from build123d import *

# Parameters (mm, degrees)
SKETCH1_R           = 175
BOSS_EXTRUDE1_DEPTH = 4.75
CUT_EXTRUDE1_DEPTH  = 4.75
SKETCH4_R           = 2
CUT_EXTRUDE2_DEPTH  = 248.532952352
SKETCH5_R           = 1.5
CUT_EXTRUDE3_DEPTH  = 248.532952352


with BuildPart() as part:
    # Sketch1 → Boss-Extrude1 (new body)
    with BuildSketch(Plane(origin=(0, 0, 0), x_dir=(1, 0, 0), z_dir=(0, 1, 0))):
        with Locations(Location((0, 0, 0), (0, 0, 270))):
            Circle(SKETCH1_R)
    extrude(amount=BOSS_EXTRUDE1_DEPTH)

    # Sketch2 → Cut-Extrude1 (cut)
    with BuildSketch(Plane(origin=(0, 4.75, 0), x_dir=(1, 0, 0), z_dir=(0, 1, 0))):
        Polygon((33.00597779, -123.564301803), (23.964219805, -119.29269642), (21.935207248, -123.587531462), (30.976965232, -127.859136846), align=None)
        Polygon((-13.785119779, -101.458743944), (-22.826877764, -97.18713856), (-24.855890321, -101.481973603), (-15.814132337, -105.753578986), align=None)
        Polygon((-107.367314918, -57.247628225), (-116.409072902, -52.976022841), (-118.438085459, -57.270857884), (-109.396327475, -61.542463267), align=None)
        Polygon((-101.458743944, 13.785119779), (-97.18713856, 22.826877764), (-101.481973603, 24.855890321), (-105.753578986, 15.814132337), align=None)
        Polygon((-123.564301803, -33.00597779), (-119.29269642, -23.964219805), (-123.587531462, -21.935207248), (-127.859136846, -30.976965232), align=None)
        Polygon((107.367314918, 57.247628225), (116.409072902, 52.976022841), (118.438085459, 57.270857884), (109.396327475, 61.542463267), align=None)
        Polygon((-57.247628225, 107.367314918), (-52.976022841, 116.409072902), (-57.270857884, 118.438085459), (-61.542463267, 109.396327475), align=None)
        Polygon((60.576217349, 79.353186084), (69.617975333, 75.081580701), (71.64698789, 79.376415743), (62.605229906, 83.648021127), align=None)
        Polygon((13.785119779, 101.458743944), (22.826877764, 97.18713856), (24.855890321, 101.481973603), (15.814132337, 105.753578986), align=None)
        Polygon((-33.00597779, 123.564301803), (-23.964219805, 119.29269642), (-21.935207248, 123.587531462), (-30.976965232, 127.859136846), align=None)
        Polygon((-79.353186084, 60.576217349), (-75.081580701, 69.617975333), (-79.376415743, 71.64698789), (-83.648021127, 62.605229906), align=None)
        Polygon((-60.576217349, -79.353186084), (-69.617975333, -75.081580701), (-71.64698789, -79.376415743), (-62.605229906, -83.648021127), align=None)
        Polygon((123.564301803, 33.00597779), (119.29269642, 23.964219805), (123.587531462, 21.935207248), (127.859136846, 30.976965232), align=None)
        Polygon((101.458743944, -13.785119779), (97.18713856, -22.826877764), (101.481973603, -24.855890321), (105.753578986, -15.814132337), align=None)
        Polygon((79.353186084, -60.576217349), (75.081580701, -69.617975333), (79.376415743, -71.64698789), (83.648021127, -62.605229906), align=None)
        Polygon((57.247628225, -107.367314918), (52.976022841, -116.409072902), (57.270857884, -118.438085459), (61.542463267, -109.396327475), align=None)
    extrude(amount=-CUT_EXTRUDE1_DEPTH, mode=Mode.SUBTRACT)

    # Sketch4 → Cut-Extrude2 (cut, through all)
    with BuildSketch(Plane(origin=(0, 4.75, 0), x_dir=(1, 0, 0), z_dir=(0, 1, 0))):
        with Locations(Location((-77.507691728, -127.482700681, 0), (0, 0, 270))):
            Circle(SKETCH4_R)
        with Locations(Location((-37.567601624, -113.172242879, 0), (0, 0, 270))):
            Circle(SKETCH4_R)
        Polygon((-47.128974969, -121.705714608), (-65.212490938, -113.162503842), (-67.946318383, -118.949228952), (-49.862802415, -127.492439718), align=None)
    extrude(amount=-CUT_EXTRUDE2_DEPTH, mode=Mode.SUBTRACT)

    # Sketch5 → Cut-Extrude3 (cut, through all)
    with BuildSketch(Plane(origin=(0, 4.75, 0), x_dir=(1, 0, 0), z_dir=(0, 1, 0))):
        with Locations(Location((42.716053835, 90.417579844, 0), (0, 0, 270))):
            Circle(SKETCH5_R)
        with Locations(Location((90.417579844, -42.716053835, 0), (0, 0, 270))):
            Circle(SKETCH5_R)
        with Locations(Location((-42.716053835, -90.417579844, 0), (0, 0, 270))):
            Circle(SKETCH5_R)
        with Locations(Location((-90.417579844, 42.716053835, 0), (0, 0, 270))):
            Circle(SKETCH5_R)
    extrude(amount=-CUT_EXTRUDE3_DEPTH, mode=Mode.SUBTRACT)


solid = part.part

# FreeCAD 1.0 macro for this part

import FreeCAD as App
import Part
import Sketcher

V = App.Vector
Q = App.Units.Quantity


def add_polygon(sketch, points):
    """Adds a closed chain of lines whose ends are joined by coincident constraints."""
    first, n = sketch.GeometryCount, len(points)
    for a, b in zip(points, points[1:] + points[:1]):
        sketch.addGeometry(Part.LineSegment(App.Vector(*a, 0), App.Vector(*b, 0)), False)
    for i in range(n):
        sketch.addConstraint(Sketcher.Constraint("Coincident", first + i, 2, first + (i + 1) % n, 1))

doc = App.newDocument("Part")
body = doc.addObject("PartDesign::Body", "Body")

# Sketch on XZ plane
sketch1 = body.newObject("Sketcher::SketchObject", "Sketch")
sketch1.AttachmentSupport = (doc.getObject("XZ_Plane"), [""])
sketch1.MapMode = "FlatFace"
sketch1.addGeometry(Part.Circle(V(0, 0, 0), V(0, 0, 1), 175), False)
sketch1.addConstraint([
    Sketcher.Constraint("Coincident", 0, 3, -1, 1),
    Sketcher.Constraint("Diameter", 0, Q("350 mm")),
])
pad1 = body.newObject("PartDesign::Pad", "Pad")
pad1.Profile = sketch1
pad1.Length = 4.75
pad1.Reversed = True

# Sketch on XZ plane
sketch2 = body.newObject("Sketcher::SketchObject", "Sketch001")
sketch2.AttachmentSupport = (doc.getObject("XZ_Plane"), [""])
sketch2.MapMode = "FlatFace"
sketch2.AttachmentOffset = App.Placement(V(0, 0, -4.75), App.Rotation())
add_polygon(sketch2, [(33, 123.6), (24, 119.3), (21.9, 123.6), (31, 127.9)])  # lines 0-3
add_polygon(sketch2, [(-13.8, 101.5), (-22.8, 97.2), (-24.9, 101.5), (-15.8, 105.8)])  # lines 4-7
add_polygon(sketch2, [(-107.4, 57.2), (-116.4, 53), (-118.4, 57.3), (-109.4, 61.5)])  # lines 8-11
add_polygon(sketch2, [(-101.5, -13.8), (-97.2, -22.8), (-101.5, -24.9), (-105.8, -15.8)])  # lines 12-15
add_polygon(sketch2, [(-123.6, 33), (-119.3, 24), (-123.6, 21.9), (-127.9, 31)])  # lines 16-19
add_polygon(sketch2, [(107.4, -57.2), (116.4, -53), (118.4, -57.3), (109.4, -61.5)])  # lines 20-23
add_polygon(sketch2, [(-57.2, -107.4), (-53, -116.4), (-57.3, -118.4), (-61.5, -109.4)])  # lines 24-27
add_polygon(sketch2, [(60.6, -79.4), (69.6, -75.1), (71.6, -79.4), (62.6, -83.6)])  # lines 28-31
add_polygon(sketch2, [(13.8, -101.5), (22.8, -97.2), (24.9, -101.5), (15.8, -105.8)])  # lines 32-35
add_polygon(sketch2, [(-33, -123.6), (-24, -119.3), (-21.9, -123.6), (-31, -127.9)])  # lines 36-39
add_polygon(sketch2, [(-79.4, -60.6), (-75.1, -69.6), (-79.4, -71.6), (-83.6, -62.6)])  # lines 40-43
add_polygon(sketch2, [(-60.6, 79.4), (-69.6, 75.1), (-71.6, 79.4), (-62.6, 83.6)])  # lines 44-47
add_polygon(sketch2, [(123.6, -33), (119.3, -24), (123.6, -21.9), (127.9, -31)])  # lines 48-51
add_polygon(sketch2, [(101.5, 13.8), (97.2, 22.8), (101.5, 24.9), (105.8, 15.8)])  # lines 52-55
add_polygon(sketch2, [(79.4, 60.6), (75.1, 69.6), (79.4, 71.6), (83.6, 62.6)])  # lines 56-59
add_polygon(sketch2, [(57.2, 107.4), (53, 116.4), (57.3, 118.4), (61.5, 109.4)])  # lines 60-63
sketch2.addConstraint([
    Sketcher.Constraint("Symmetric", 8, 2, 20, 2, -1, 1),
    Sketcher.Constraint("Symmetric", 9, 2, 21, 2, -1, 1),
    Sketcher.Constraint("Symmetric", 10, 2, 22, 2, -1, 1),
    Sketcher.Constraint("Symmetric", 11, 2, 23, 2, -1, 1),
    Sketcher.Constraint("Symmetric", 4, 2, 32, 2, -1, 1),
    Sketcher.Constraint("Symmetric", 5, 2, 33, 2, -1, 1),
    Sketcher.Constraint("Symmetric", 6, 2, 34, 2, -1, 1),
    Sketcher.Constraint("Symmetric", 7, 2, 35, 2, -1, 1),
    Sketcher.Constraint("Symmetric", 0, 2, 36, 2, -1, 1),
    Sketcher.Constraint("Symmetric", 1, 2, 37, 2, -1, 1),
    Sketcher.Constraint("Symmetric", 2, 2, 38, 2, -1, 1),
    Sketcher.Constraint("Symmetric", 3, 2, 39, 2, -1, 1),
    Sketcher.Constraint("Symmetric", 28, 2, 44, 2, -1, 1),
    Sketcher.Constraint("Symmetric", 29, 2, 45, 2, -1, 1),
    Sketcher.Constraint("Symmetric", 30, 2, 46, 2, -1, 1),
    Sketcher.Constraint("Symmetric", 31, 2, 47, 2, -1, 1),
    Sketcher.Constraint("Symmetric", 16, 2, 48, 2, -1, 1),
    Sketcher.Constraint("Symmetric", 17, 2, 49, 2, -1, 1),
    Sketcher.Constraint("Symmetric", 18, 2, 50, 2, -1, 1),
    Sketcher.Constraint("Symmetric", 19, 2, 51, 2, -1, 1),
    Sketcher.Constraint("Symmetric", 12, 2, 52, 2, -1, 1),
    Sketcher.Constraint("Symmetric", 13, 2, 53, 2, -1, 1),
    Sketcher.Constraint("Symmetric", 14, 2, 54, 2, -1, 1),
    Sketcher.Constraint("Symmetric", 15, 2, 55, 2, -1, 1),
    Sketcher.Constraint("Symmetric", 40, 2, 56, 2, -1, 1),
    Sketcher.Constraint("Symmetric", 41, 2, 57, 2, -1, 1),
    Sketcher.Constraint("Symmetric", 42, 2, 58, 2, -1, 1),
    Sketcher.Constraint("Symmetric", 43, 2, 59, 2, -1, 1),
    Sketcher.Constraint("Symmetric", 24, 2, 60, 2, -1, 1),
    Sketcher.Constraint("Symmetric", 25, 2, 61, 2, -1, 1),
    Sketcher.Constraint("Symmetric", 26, 2, 62, 2, -1, 1),
    Sketcher.Constraint("Symmetric", 27, 2, 63, 2, -1, 1),
    Sketcher.Constraint("Perpendicular", 0, 1),
    Sketcher.Constraint("Perpendicular", 1, 2),
    Sketcher.Constraint("Perpendicular", 2, 3),
    Sketcher.Constraint("Perpendicular", 3, 4),
    Sketcher.Constraint("Perpendicular", 4, 5),
    Sketcher.Constraint("Perpendicular", 5, 6),
    Sketcher.Constraint("Perpendicular", 6, 7),
    Sketcher.Constraint("Perpendicular", 7, 8),
    Sketcher.Constraint("Perpendicular", 8, 9),
    Sketcher.Constraint("Perpendicular", 9, 10),
    Sketcher.Constraint("Perpendicular", 10, 11),
    Sketcher.Constraint("Parallel", 11, 12),
    Sketcher.Constraint("Perpendicular", 12, 13),
    Sketcher.Constraint("Perpendicular", 13, 14),
    Sketcher.Constraint("Perpendicular", 14, 15),
    Sketcher.Constraint("Perpendicular", 15, 16),
    Sketcher.Constraint("Perpendicular", 16, 17),
    Sketcher.Constraint("Perpendicular", 17, 18),
    Sketcher.Constraint("Perpendicular", 18, 19),
    Sketcher.Constraint("Parallel", 23, 24),
    Sketcher.Constraint("Perpendicular", 24, 25),
    Sketcher.Constraint("Perpendicular", 25, 26),
    Sketcher.Constraint("Perpendicular", 26, 27),
    Sketcher.Constraint("Parallel", 27, 28),
    Sketcher.Constraint("Perpendicular", 28, 29),
    Sketcher.Constraint("Perpendicular", 29, 30),
    Sketcher.Constraint("Perpendicular", 30, 31),
    Sketcher.Constraint("Parallel", 39, 40),
    Sketcher.Constraint("Perpendicular", 40, 41),
    Sketcher.Constraint("Perpendicular", 41, 42),
    Sketcher.Constraint("Perpendicular", 42, 43),
    Sketcher.Constraint("Equal", 2, 4),
    Sketcher.Constraint("Equal", 3, 5),
    Sketcher.Constraint("Equal", 6, 8),
    Sketcher.Constraint("Equal", 7, 9),
    Sketcher.Constraint("Equal", 10, 12),
    Sketcher.Constraint("Equal", 11, 13),
    Sketcher.Constraint("Equal", 14, 16),
    Sketcher.Constraint("Equal", 15, 17),
    Sketcher.Constraint("Equal", 22, 24),
    Sketcher.Constraint("Equal", 23, 25),
    Sketcher.Constraint("Equal", 26, 28),
    Sketcher.Constraint("Equal", 27, 29),
    Sketcher.Constraint("Equal", 38, 40),
    Sketcher.Constraint("Equal", 39, 41),
    Sketcher.Constraint("Distance", 0, Q("10 mm")),
    Sketcher.Constraint("Distance", 1, Q("4.75 mm")),
    Sketcher.Constraint("DistanceY", -1, 1, 3, 2, Q("123.564302 mm")),
    Sketcher.Constraint("DistanceX", 19, 2, -1, 1, Q("123.564302 mm")),
    Sketcher.Constraint("DistanceX", -1, 1, 0, 2, Q("23.96422 mm")),
    Sketcher.Constraint("DistanceY", -1, 1, 1, 2, Q("123.587531 mm")),
    Sketcher.Constraint("DistanceY", -1, 1, 4, 2, Q("97.187139 mm")),
    Sketcher.Constraint("DistanceX", 5, 2, -1, 1, Q("24.85589 mm")),
    Sketcher.Constraint("DistanceY", -1, 1, 11, 2, Q("57.247628 mm")),
    Sketcher.Constraint("DistanceX", 12, 2, -1, 1, Q("97.187139 mm")),
    Sketcher.Constraint("DistanceY", 13, 2, -1, 1, Q("24.85589 mm")),
    Sketcher.Constraint("DistanceY", -1, 1, 16, 2, Q("23.96422 mm")),
    Sketcher.Constraint("DistanceX", 27, 2, -1, 1, Q("57.247628 mm")),
    Sketcher.Constraint("DistanceY", 28, 2, -1, 1, Q("75.081581 mm")),
    Sketcher.Constraint("DistanceX", -1, 1, 30, 2, Q("62.60523 mm")),
    Sketcher.Constraint("DistanceX", 40, 2, -1, 1, Q("75.081581 mm")),
    Sketcher.Constraint("DistanceY", 42, 2, -1, 1, Q("62.60523 mm")),
    Sketcher.Constraint("DistanceX", 8, 2, -1, 1, Q("116.409073 mm")),
    Sketcher.Constraint("DistanceY", 24, 2, -1, 1, Q("116.409073 mm")),
])
pocket1 = body.newObject("PartDesign::Pocket", "Pocket")
pocket1.Profile = sketch2
pocket1.Length = 4.75
pocket1.Reversed = True

# Sketch on XZ plane
sketch3 = body.newObject("Sketcher::SketchObject", "Sketch002")
sketch3.AttachmentSupport = (doc.getObject("XZ_Plane"), [""])
sketch3.MapMode = "FlatFace"
sketch3.AttachmentOffset = App.Placement(V(0, 0, -4.75), App.Rotation())
sketch3.addGeometry(Part.Circle(V(-77.5, 127.5, 0), V(0, 0, 1), 2), False)  # 0
sketch3.addGeometry(Part.Circle(V(-37.6, 113.2, 0), V(0, 0, 1), 2), False)  # 1
add_polygon(sketch3, [(-47.1, 121.7), (-65.2, 113.2), (-67.9, 118.9), (-49.9, 127.5)])  # lines 2-5
sketch3.addConstraint([
    Sketcher.Constraint("Equal", 0, 1),
    Sketcher.Constraint("Perpendicular", 2, 3),
    Sketcher.Constraint("Perpendicular", 3, 4),
    Sketcher.Constraint("Perpendicular", 4, 5),
    Sketcher.Constraint("Diameter", 0, Q("4 mm")),
    Sketcher.Constraint("Distance", 2, Q("20 mm")),
    Sketcher.Constraint("Distance", 3, Q("6.4 mm")),
    Sketcher.Constraint("DistanceY", -1, 1, 0, 3, Q("127.482701 mm")),
    Sketcher.Constraint("DistanceX", 1, 3, -1, 1, Q("37.567602 mm")),
    Sketcher.Constraint("DistanceX", 0, 3, 2, 2, Q("12.295201 mm")),
    Sketcher.Constraint("DistanceX", 4, 2, 1, 3, Q("12.295201 mm")),
    Sketcher.Constraint("DistanceX", 0, 3, -1, 1, Q("77.507692 mm")),
    Sketcher.Constraint("DistanceY", -1, 1, 3, 2, Q("118.949229 mm")),
    Sketcher.Constraint("DistanceY", 2, 2, 1, 3, Q("0.009739 mm")),
])
pocket2 = body.newObject("PartDesign::Pocket", "Pocket001")
pocket2.Profile = sketch3
pocket2.Type = "ThroughAll"
pocket2.Reversed = True

# Sketch on XZ plane
sketch4 = body.newObject("Sketcher::SketchObject", "Sketch003")
sketch4.AttachmentSupport = (doc.getObject("XZ_Plane"), [""])
sketch4.MapMode = "FlatFace"
sketch4.AttachmentOffset = App.Placement(V(0, 0, -4.75), App.Rotation())
sketch4.addGeometry([
    Part.Circle(V(42.7, -90.4, 0), V(0, 0, 1), 1.5),
    Part.Circle(V(90.4, 42.7, 0), V(0, 0, 1), 1.5),
    Part.Circle(V(-42.7, 90.4, 0), V(0, 0, 1), 1.5),
    Part.Circle(V(-90.4, -42.7, 0), V(0, 0, 1), 1.5),
], False)
sketch4.addConstraint([
    Sketcher.Constraint("Equal", 0, 1),
    Sketcher.Constraint("Equal", 1, 2),
    Sketcher.Constraint("Equal", 2, 3),
    Sketcher.Constraint("Symmetric", 0, 3, 2, 3, -1, 1),
    Sketcher.Constraint("Symmetric", 1, 3, 3, 3, -1, 1),
    Sketcher.Constraint("Diameter", 0, Q("3 mm")),
    Sketcher.Constraint("DistanceY", 0, 3, -1, 1, Q("90.41758 mm")),
    Sketcher.Constraint("DistanceX", -1, 1, 1, 3, Q("90.41758 mm")),
    Sketcher.Constraint("DistanceX", -1, 1, 0, 3, Q("42.716054 mm")),
    Sketcher.Constraint("DistanceY", -1, 1, 1, 3, Q("42.716054 mm")),
])
pocket3 = body.newObject("PartDesign::Pocket", "Pocket002")
pocket3.Profile = sketch4
pocket3.Type = "ThroughAll"
pocket3.Reversed = True

doc.recompute()
